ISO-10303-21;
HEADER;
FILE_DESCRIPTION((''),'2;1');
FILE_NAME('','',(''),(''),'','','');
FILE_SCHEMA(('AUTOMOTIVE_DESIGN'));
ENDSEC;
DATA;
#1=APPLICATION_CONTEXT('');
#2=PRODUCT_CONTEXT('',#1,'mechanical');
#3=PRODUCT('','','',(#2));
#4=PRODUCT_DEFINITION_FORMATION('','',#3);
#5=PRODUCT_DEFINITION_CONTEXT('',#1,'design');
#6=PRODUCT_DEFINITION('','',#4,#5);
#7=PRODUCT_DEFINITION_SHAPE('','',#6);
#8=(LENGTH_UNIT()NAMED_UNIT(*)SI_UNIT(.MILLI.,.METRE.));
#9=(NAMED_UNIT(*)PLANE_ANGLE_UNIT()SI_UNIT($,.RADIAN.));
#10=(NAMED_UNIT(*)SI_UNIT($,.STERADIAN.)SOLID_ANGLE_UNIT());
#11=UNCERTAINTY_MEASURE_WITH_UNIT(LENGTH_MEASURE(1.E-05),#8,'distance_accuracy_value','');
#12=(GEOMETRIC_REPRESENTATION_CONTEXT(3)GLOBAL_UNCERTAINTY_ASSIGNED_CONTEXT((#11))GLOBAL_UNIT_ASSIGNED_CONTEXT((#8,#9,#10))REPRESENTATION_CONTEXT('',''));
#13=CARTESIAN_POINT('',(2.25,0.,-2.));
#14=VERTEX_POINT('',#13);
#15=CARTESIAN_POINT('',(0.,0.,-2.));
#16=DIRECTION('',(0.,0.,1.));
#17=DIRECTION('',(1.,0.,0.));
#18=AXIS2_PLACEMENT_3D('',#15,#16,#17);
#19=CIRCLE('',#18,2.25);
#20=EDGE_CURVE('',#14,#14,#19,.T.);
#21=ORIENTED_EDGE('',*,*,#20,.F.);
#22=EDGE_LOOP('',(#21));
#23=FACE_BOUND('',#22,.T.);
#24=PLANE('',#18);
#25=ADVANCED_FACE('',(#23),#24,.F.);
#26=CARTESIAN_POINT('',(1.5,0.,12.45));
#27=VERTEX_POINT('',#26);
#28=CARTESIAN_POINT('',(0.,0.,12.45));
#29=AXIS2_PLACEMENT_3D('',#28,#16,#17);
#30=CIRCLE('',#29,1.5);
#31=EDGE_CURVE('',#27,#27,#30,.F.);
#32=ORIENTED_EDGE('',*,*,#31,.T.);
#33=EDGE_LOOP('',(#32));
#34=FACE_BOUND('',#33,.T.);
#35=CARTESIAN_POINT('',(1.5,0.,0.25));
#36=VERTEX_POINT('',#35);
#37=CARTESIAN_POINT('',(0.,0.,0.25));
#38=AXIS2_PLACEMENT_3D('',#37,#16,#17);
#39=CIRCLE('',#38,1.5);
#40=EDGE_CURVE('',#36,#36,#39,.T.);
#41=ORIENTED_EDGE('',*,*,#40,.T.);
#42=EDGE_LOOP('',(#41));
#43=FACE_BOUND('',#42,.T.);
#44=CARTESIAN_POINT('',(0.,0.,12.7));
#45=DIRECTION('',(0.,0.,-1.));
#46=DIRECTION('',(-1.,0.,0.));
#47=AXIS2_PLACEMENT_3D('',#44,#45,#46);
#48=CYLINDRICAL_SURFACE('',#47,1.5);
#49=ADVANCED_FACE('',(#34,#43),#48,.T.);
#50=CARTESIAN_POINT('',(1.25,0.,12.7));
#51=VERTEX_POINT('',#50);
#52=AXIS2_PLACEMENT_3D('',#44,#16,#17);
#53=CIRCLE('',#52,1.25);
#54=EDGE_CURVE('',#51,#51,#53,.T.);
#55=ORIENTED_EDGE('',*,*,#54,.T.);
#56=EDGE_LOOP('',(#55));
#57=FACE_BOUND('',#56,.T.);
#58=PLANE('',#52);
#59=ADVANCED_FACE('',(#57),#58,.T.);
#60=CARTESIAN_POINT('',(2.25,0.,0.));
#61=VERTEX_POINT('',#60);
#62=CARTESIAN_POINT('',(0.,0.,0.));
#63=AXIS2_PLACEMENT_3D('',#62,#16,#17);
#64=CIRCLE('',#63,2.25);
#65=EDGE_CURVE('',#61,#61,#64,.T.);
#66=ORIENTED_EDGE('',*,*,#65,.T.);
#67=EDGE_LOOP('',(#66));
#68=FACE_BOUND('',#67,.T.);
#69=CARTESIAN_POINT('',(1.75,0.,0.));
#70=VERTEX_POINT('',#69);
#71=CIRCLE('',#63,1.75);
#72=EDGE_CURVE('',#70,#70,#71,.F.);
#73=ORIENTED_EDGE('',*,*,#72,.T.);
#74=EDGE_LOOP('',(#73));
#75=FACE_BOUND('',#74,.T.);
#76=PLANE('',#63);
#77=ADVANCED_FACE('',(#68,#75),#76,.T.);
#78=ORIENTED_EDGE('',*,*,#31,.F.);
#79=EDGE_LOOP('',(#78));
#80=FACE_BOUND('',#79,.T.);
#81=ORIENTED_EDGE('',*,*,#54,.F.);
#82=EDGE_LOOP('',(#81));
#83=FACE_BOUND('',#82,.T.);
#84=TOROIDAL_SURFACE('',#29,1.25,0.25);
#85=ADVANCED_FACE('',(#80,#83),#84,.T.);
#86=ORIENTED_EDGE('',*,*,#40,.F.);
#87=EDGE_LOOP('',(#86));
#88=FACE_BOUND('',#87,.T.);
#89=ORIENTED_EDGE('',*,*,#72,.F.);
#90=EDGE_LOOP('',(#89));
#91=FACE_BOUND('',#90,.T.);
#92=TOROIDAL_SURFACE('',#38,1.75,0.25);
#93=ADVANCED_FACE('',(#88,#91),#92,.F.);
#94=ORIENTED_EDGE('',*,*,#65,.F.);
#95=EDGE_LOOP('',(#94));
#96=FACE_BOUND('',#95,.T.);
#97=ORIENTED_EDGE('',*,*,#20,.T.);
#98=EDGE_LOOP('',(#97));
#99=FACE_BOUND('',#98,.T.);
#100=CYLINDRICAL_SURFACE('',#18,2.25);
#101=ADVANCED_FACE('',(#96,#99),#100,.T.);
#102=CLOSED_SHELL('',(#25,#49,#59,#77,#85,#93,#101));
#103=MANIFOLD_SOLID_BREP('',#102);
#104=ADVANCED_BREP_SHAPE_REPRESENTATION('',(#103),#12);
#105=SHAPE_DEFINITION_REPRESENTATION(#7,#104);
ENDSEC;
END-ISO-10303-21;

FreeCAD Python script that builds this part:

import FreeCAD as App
import Part
import Sketcher


def edges_at(feature, points):
    """Names of the edges that pass closest to the given points."""
    edges = feature.Shape.Edges
    near = lambda p: min(range(len(edges)), key=lambda i: edges[i].distToShape(Part.Vertex(*p))[0])
    return sorted({f"Edge{near(p) + 1}" for p in points})

doc = App.newDocument("Part")
body = doc.addObject("PartDesign::Body", "Body")

# Sketch on XY plane
sketch1 = doc.addObject("Sketcher::SketchObject", "Sketch")
body.addObject(sketch1)
sketch1.AttachmentSupport = (doc.XY_Plane, [""])
sketch1.MapMode = "FlatFace"
sketch1.addGeometry(Part.Circle(App.Vector(0, 0, 0), App.Vector(0, 0, 1), 1.5), False)
sketch1.addConstraint(Sketcher.Constraint("Coincident", 0, 3, -1, 1))
sketch1.addConstraint(Sketcher.Constraint("Diameter", 0, 3.0))
pad1 = doc.addObject("PartDesign::Pad", "Pad")
body.addObject(pad1)
pad1.Profile = sketch1
pad1.Length = 12.7

# Sketch on XY plane
sketch2 = doc.addObject("Sketcher::SketchObject", "Sketch001")
body.addObject(sketch2)
sketch2.AttachmentSupport = (doc.XY_Plane, [""])
sketch2.MapMode = "FlatFace"
sketch2.addGeometry(Part.Circle(App.Vector(0, 0, 0), App.Vector(0, 0, 1), 2.25), False)
sketch2.addConstraint(Sketcher.Constraint("Coincident", 0, 3, -1, 1))
sketch2.addConstraint(Sketcher.Constraint("Diameter", 0, 4.5))
pad2 = doc.addObject("PartDesign::Pad", "Pad001")
body.addObject(pad2)
pad2.Profile = sketch2
pad2.Length = 2
pad2.Reversed = True
doc.recompute()

fillet = doc.addObject("PartDesign::Fillet", "Fillet")
body.addObject(fillet)
fillet.Base = (pad2, edges_at(pad2, [(-1.5, 0, 12.7)]))
fillet.Radius = 0.25
doc.recompute()

fillet2 = doc.addObject("PartDesign::Fillet", "Fillet001")
body.addObject(fillet2)
fillet2.Base = (fillet, edges_at(fillet, [(-1.5, 0, 0)]))
fillet2.Radius = 0.25

doc.recompute()
